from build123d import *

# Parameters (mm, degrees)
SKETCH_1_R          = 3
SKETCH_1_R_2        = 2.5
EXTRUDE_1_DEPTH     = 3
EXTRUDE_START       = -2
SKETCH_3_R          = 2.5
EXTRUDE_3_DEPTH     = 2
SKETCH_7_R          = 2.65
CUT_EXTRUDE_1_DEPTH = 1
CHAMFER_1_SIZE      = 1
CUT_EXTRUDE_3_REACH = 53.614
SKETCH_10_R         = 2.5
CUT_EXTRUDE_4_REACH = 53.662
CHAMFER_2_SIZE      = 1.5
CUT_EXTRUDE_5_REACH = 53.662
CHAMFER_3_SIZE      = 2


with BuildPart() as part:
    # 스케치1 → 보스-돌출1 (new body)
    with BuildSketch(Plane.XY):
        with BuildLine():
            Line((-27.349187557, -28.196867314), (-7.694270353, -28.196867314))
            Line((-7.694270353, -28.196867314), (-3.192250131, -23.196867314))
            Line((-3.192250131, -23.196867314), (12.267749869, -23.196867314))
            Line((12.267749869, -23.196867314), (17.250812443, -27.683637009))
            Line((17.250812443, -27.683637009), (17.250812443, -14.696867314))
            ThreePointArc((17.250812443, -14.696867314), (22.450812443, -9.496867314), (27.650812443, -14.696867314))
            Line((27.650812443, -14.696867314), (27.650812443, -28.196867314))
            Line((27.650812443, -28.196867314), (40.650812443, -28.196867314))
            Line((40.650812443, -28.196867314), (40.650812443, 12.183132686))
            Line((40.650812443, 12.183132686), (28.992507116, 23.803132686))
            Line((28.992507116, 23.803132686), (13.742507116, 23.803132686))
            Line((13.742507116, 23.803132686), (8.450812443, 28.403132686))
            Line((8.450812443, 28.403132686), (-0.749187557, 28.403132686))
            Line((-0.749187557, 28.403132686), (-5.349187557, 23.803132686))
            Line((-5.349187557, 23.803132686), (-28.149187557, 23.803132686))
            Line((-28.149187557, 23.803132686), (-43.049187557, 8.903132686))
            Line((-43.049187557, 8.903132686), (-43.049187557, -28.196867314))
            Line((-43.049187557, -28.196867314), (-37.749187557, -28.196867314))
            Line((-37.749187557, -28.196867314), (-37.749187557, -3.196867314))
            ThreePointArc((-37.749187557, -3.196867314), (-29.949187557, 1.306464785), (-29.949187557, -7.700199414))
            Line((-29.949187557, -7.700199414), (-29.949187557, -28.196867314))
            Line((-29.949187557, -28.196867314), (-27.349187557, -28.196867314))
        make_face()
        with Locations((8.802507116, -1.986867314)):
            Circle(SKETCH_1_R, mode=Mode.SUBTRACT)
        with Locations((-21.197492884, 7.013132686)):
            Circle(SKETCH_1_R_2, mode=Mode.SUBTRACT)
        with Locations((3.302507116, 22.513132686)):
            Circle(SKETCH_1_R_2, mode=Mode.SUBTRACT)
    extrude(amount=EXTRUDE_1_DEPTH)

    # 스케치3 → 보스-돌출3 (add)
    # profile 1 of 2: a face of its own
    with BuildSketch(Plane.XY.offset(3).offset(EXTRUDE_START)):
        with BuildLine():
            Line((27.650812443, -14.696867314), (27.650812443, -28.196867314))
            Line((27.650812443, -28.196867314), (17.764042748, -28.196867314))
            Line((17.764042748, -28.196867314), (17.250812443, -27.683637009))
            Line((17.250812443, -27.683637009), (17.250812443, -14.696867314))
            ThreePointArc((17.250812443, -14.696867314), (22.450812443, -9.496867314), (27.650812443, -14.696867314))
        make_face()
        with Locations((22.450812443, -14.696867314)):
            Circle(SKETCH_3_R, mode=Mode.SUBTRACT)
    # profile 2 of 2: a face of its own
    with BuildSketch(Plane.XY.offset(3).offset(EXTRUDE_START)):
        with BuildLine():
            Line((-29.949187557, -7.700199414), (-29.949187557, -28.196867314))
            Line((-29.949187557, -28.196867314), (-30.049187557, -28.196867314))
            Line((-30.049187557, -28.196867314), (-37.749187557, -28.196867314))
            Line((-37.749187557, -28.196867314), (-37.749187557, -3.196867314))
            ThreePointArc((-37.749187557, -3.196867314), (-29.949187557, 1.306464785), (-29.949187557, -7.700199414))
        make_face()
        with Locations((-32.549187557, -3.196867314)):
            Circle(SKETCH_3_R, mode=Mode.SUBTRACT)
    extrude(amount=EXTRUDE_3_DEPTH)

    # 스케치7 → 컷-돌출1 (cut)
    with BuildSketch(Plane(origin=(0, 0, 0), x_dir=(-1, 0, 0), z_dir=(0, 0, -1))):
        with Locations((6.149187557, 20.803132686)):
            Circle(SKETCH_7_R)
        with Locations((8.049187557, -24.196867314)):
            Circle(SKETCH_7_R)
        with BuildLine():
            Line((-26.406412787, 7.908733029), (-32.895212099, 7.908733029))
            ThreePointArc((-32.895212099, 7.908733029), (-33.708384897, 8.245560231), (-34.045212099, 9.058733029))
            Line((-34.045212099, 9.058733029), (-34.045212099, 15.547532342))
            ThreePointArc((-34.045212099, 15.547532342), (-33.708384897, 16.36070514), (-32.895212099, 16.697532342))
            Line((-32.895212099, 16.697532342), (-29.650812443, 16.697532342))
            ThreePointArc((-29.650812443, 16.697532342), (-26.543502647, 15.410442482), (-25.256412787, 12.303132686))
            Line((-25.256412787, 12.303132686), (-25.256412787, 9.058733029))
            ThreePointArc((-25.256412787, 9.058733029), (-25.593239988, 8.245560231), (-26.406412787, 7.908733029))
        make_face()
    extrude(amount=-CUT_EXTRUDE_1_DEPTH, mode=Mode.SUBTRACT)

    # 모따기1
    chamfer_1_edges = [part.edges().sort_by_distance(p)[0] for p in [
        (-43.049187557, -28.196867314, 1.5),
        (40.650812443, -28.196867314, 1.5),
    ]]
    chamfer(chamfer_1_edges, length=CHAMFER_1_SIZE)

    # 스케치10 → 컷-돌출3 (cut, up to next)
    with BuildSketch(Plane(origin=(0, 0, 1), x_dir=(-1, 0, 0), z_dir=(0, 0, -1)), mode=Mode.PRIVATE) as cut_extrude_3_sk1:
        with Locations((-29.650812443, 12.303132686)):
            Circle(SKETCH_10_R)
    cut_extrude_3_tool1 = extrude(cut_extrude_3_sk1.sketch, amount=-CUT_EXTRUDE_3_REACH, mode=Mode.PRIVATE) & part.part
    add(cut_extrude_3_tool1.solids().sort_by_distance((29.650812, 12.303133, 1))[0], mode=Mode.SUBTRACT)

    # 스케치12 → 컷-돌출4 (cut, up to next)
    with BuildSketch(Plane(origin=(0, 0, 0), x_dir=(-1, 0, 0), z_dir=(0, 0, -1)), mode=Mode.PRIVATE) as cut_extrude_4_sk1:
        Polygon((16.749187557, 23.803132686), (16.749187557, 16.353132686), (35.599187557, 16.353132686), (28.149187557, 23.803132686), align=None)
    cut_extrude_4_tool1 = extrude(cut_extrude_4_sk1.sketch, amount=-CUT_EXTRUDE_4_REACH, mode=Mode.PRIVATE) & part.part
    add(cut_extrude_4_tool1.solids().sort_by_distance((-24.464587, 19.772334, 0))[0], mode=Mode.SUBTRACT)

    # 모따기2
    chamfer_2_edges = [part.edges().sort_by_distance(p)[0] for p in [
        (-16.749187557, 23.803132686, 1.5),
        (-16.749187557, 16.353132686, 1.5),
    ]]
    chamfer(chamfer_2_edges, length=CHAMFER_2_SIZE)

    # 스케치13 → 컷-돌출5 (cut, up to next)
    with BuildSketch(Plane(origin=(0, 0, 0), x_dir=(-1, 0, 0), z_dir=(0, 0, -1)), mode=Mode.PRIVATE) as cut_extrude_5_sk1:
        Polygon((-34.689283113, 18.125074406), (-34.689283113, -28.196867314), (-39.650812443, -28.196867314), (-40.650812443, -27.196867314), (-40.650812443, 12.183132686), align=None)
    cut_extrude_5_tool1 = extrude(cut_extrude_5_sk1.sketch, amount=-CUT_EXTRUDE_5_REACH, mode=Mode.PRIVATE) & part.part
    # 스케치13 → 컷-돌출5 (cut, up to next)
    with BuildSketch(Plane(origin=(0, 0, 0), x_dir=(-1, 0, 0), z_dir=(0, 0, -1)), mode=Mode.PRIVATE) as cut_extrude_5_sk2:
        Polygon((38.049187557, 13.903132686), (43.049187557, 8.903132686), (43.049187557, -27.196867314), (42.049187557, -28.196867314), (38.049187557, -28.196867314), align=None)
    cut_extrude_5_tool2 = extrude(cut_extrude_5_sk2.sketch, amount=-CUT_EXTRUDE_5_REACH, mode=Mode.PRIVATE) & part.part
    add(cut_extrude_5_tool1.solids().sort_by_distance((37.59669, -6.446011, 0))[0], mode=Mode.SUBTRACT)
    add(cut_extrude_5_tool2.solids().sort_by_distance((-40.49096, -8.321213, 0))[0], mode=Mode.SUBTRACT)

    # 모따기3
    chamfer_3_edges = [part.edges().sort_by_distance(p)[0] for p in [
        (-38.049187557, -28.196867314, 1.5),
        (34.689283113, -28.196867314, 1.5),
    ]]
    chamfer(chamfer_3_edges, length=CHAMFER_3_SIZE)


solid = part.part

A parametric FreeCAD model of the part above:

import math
import FreeCAD as App
import Part
import Sketcher
Q = App.Units.Quantity


def edges_at(feature, points):
    """Names of the edges that pass closest to the given points."""
    edges = feature.Shape.Edges
    near = lambda p: min(range(len(edges)), key=lambda i: edges[i].distToShape(Part.Vertex(*p))[0])
    return sorted({f"Edge{near(p) + 1}" for p in points})


def add_polygon(sketch, points):
    """Adds a closed chain of lines whose ends are joined by coincident constraints."""
    first, n = sketch.GeometryCount, len(points)
    for a, b in zip(points, points[1:] + points[:1]):
        sketch.addGeometry(Part.LineSegment(App.Vector(*a, 0), App.Vector(*b, 0)), False)
    for i in range(n):
        sketch.addConstraint(Sketcher.Constraint("Coincident", first + i, 2, first + (i + 1) % n, 1))

doc = App.newDocument("Part")
params = doc.addObject("Spreadsheet::Sheet", "Params")
for row, (alias, value) in enumerate([
    ("sketch1_diameter", "5 mm"),
    ("sketch1_diameter2", "6 mm"),
    ("sketch1_radius", "5.2 mm"),
    ("sketch1_width", "13 mm"),
    ("sketch1_height", "25 mm"),
    ("pad1_length", "3 mm"),
    ("sketch2_diameter", "5 mm"),
    ("sketch2_radius", "5.2 mm"),
    ("sketch2_height", "25 mm"),
    ("sketch2_width", "7.8 mm"),
    ("sketch2_height2", "13.5 mm"),
    ("pad2_length", "2 mm"),
    ("sketch3_diameter", "5.3 mm"),
    ("sketch3_radius", "1.15 mm"),
    ("pocket1_length", "1 mm"),
    ("chamfer_size", "1 mm"),
    ("sketch4_diameter", "5 mm"),
    ("sketch5_width", "11.4 mm"),
    ("sketch5_width2", "18.85 mm"),
    ("chamfer2_size", "1.5 mm"),
    ("sketch6_height", "39.38 mm"),
    ("sketch7_width", "4 mm"),
    ("sketch7_height", "42.1 mm"),
    ("sketch7_height2", "36.1 mm"),
    ("chamfer3_size", "2 mm"),
], start=1):
    params.set(f"A{row}", alias)
    params.set(f"B{row}", "=" + value)
    params.setAlias(f"B{row}", alias)

body = doc.addObject("PartDesign::Body", "Body")

# Sketch on XY plane
sketch1 = doc.addObject("Sketcher::SketchObject", "Sketch")
body.addObject(sketch1)
sketch1.AttachmentSupport = (doc.XY_Plane, [""])
sketch1.MapMode = "FlatFace"
sketch1.addGeometry([
    Part.LineSegment(App.Vector(-7.69427, -28.196867, 0), App.Vector(-3.19225, -23.196867, 0)),  # 0
    Part.LineSegment(App.Vector(-3.19225, -23.196867, 0), App.Vector(12.26775, -23.196867, 0)),  # 1
    Part.LineSegment(App.Vector(12.26775, -23.196867, 0), App.Vector(17.250812, -27.683637, 0)),  # 2
    Part.LineSegment(App.Vector(17.250812, -27.683637, 0), App.Vector(17.250812, -14.696867, 0)),  # 3
    Part.ArcOfCircle(Part.Circle(App.Vector(22.450812, -14.696867, 0), App.Vector(0, 0, 1), 5.2), math.radians(0), math.radians(180)),  # 4
    Part.LineSegment(App.Vector(27.650812, -14.696867, 0), App.Vector(27.650812, -28.196867, 0)),  # 5
    Part.LineSegment(App.Vector(27.650812, -28.196867, 0), App.Vector(40.650812, -28.196867, 0)),  # 6
    Part.LineSegment(App.Vector(40.650812, -28.196867, 0), App.Vector(40.650812, 12.183133, 0)),  # 7
    Part.LineSegment(App.Vector(40.650812, 12.183133, 0), App.Vector(28.992507, 23.803133, 0)),  # 8
    Part.LineSegment(App.Vector(28.992507, 23.803133, 0), App.Vector(13.742507, 23.803133, 0)),  # 9
    Part.LineSegment(App.Vector(13.742507, 23.803133, 0), App.Vector(8.450812, 28.403133, 0)),  # 10
    Part.LineSegment(App.Vector(8.450812, 28.403133, 0), App.Vector(-0.749188, 28.403133, 0)),  # 11
    Part.LineSegment(App.Vector(-0.749188, 28.403133, 0), App.Vector(-5.349188, 23.803133, 0)),  # 12
    Part.LineSegment(App.Vector(-5.349188, 23.803133, 0), App.Vector(-28.149188, 23.803133, 0)),  # 13
    Part.LineSegment(App.Vector(-28.149188, 23.803133, 0), App.Vector(-43.049188, 8.903133, 0)),  # 14
    Part.LineSegment(App.Vector(-43.049188, 8.903133, 0), App.Vector(-43.049188, -28.196867, 0)),  # 15
    Part.LineSegment(App.Vector(-43.049188, -28.196867, 0), App.Vector(-37.749188, -28.196867, 0)),  # 16
    Part.LineSegment(App.Vector(-37.749188, -28.196867, 0), App.Vector(-37.749188, -3.196867, 0)),  # 17
    Part.ArcOfCircle(Part.Circle(App.Vector(-32.549188, -3.196867, 0), App.Vector(0, 0, 1), 5.2), math.radians(-60), math.radians(180)),  # 18
    Part.LineSegment(App.Vector(-29.949188, -7.700199, 0), App.Vector(-29.949188, -28.196867, 0)),  # 19
    Part.LineSegment(App.Vector(-29.949188, -28.196867, 0), App.Vector(-7.69427, -28.196867, 0)),  # 20
    Part.Circle(App.Vector(-21.197493, 7.013133, 0), App.Vector(0, 0, 1), 2.5),  # 21
    Part.Circle(App.Vector(8.802507, -1.986867, 0), App.Vector(0, 0, 1), 3),  # 22
    Part.Circle(App.Vector(3.302507, 22.513133, 0), App.Vector(0, 0, 1), 2.5),  # 23
], False)
sketch1.addConstraint([
    Sketcher.Constraint("Coincident", 0, 2, 1, 1),
    Sketcher.Constraint("Coincident", 1, 2, 2, 1),
    Sketcher.Constraint("Coincident", 2, 2, 3, 1),
    Sketcher.Constraint("Tangent", 3, 2, 4, 2),
    Sketcher.Constraint("Tangent", 4, 1, 5, 1),
    Sketcher.Constraint("Coincident", 5, 2, 6, 1),
    Sketcher.Constraint("Coincident", 6, 2, 7, 1),
    Sketcher.Constraint("Coincident", 7, 2, 8, 1),
    Sketcher.Constraint("Coincident", 8, 2, 9, 1),
    Sketcher.Constraint("Coincident", 9, 2, 10, 1),
    Sketcher.Constraint("Coincident", 10, 2, 11, 1),
    Sketcher.Constraint("Coincident", 11, 2, 12, 1),
    Sketcher.Constraint("Coincident", 12, 2, 13, 1),
    Sketcher.Constraint("Coincident", 13, 2, 14, 1),
    Sketcher.Constraint("Coincident", 14, 2, 15, 1),
    Sketcher.Constraint("Coincident", 15, 2, 16, 1),
    Sketcher.Constraint("Coincident", 16, 2, 17, 1),
    Sketcher.Constraint("Tangent", 17, 2, 18, 2),
    Sketcher.Constraint("Coincident", 18, 1, 19, 1),
    Sketcher.Constraint("Coincident", 19, 2, 20, 1),
    Sketcher.Constraint("Coincident", 20, 2, 0, 1),
    Sketcher.Constraint("Horizontal", 1),
    Sketcher.Constraint("Vertical", 3),
    Sketcher.Constraint("Vertical", 5),
    Sketcher.Constraint("Horizontal", 6),
    Sketcher.Constraint("Vertical", 7),
    Sketcher.Constraint("Horizontal", 9),
    Sketcher.Constraint("Horizontal", 11),
    Sketcher.Constraint("Horizontal", 13),
    Sketcher.Constraint("Vertical", 15),
    Sketcher.Constraint("Horizontal", 16),
    Sketcher.Constraint("Vertical", 17),
    Sketcher.Constraint("Vertical", 19),
    Sketcher.Constraint("Horizontal", 20),
    Sketcher.Constraint("Equal", 4, 18),
    Sketcher.Constraint("Equal", 21, 23),
    Sketcher.Constraint("Perpendicular", 0, 2),
    Sketcher.Constraint("Parallel", 12, 14),
    Sketcher.Constraint("Horizontal", 9, 2, 12, 2),
    Sketcher.Constraint("Horizontal", 6, 2, 15, 2),
    Sketcher.Constraint("Horizontal", 16, 2, 19, 2),
    Sketcher.Constraint("Diameter", 21, 5.0),
    Sketcher.Constraint("Diameter", 22, 6.0),
    Sketcher.Constraint("Radius", 4, 5.2),
    Sketcher.Constraint("DistanceX", 6, 1, 6, 2, 13.0),
    Sketcher.Constraint("DistanceY", 17, 1, 17, 2, 25.0),
    Sketcher.Constraint("Angle", 0, Q("48 deg")),
    Sketcher.Constraint("Angle", 10, Q("139 deg")),
    Sketcher.Constraint("Angle", 12, Q("-135 deg")),
    Sketcher.Constraint("DistanceX", 11, 2, 11, 1, 9.2),
    Sketcher.Constraint("DistanceX", 13, 2, 13, 1, 22.8),
    Sketcher.Constraint("DistanceX", 16, 1, 16, 2, 5.3),
    Sketcher.Constraint("DistanceY", 5, 2, 5, 1, 13.5),
    Sketcher.Constraint("DistanceY", 15, 2, 15, 1, 37.1),
    Sketcher.Constraint("DistanceX", 18, 3, 4, 3, 55.0),
    Sketcher.Constraint("DistanceX", 21, 3, 22, 3, 30.0),
    Sketcher.Constraint("DistanceY", 22, 3, 21, 3, 9.0),
    Sketcher.Constraint("DistanceY", 0, 2, 18, 3, 20.0),
    Sketcher.Constraint("DistanceY", 18, 3, 13, 2, 27.0),
    Sketcher.Constraint("DistanceX", 1, 1, 1, 2, 15.46),
    Sketcher.Constraint("DistanceX", 9, 2, 9, 1, 15.25),
    Sketcher.Constraint("DistanceY", 7, 1, 7, 2, 40.38),
    Sketcher.Constraint("DistanceX", 23, 3, 22, 3, 5.5),
    Sketcher.Constraint("DistanceY", 22, 3, 23, 3, 24.5),
    Sketcher.Constraint("DistanceY", 9, 2, 10, 2, 4.6),
    Sketcher.Constraint("DistanceX", 18, 3, 18, 1, 2.6),
    Sketcher.Constraint("DistanceY", 18, 3, 21, 3, 10.21),
    Sketcher.Constraint("DistanceX", 23, 3, 8, 2, 25.69),
    Sketcher.Constraint("DistanceY", 3, 1, 3, 2, 12.98677),
    Sketcher.Constraint("DistanceY", 18, 1, -1, 1, 7.700199),
    Sketcher.Constraint("DistanceX", 0, 2, -1, 1, 3.19225),
])
sketch1.setExpression("Constraints[41]", "Params.sketch1_diameter")
sketch1.setExpression("Constraints[42]", "Params.sketch1_diameter2")
sketch1.setExpression("Constraints[43]", "Params.sketch1_radius")
sketch1.setExpression("Constraints[44]", "Params.sketch1_width")
sketch1.setExpression("Constraints[45]", "Params.sketch1_height")
pad1 = doc.addObject("PartDesign::Pad", "Pad")
body.addObject(pad1)
pad1.Profile = sketch1
pad1.setExpression("Length", "Params.pad1_length")

# Sketch on XY plane
sketch2 = doc.addObject("Sketcher::SketchObject", "Sketch001")
body.addObject(sketch2)
sketch2.AttachmentSupport = (doc.XY_Plane, [""])
sketch2.MapMode = "FlatFace"
sketch2.AttachmentOffset = App.Placement(App.Vector(0, 0, 1), App.Rotation())
sketch2.addGeometry([
    Part.LineSegment(App.Vector(27.650812, -28.196867, 0), App.Vector(27.650812, -14.696867, 0)),  # 0
    Part.ArcOfCircle(Part.Circle(App.Vector(22.450812, -14.696867, 0), App.Vector(0, 0, 1), 5.2), math.radians(0), math.radians(180)),  # 1
    Part.LineSegment(App.Vector(17.250812, -14.696867, 0), App.Vector(17.250812, -27.683637, 0)),  # 2
    Part.LineSegment(App.Vector(17.250812, -27.683637, 0), App.Vector(17.764043, -28.196867, 0)),  # 3
    Part.LineSegment(App.Vector(17.764043, -28.196867, 0), App.Vector(27.650812, -28.196867, 0)),  # 4
    Part.Circle(App.Vector(22.450812, -14.696867, 0), App.Vector(0, 0, 1), 2.5),  # 5
    Part.LineSegment(App.Vector(-29.949188, -28.196867, 0), App.Vector(-29.949188, -7.700199, 0)),  # 6
    Part.ArcOfCircle(Part.Circle(App.Vector(-32.549188, -3.196867, 0), App.Vector(0, 0, 1), 5.2), math.radians(-60), math.radians(180)),  # 7
    Part.LineSegment(App.Vector(-37.749188, -3.196867, 0), App.Vector(-37.749188, -28.196867, 0)),  # 8
    Part.LineSegment(App.Vector(-37.749188, -28.196867, 0), App.Vector(-29.949188, -28.196867, 0)),  # 9
    Part.Circle(App.Vector(-32.549188, -3.196867, 0), App.Vector(0, 0, 1), 2.5),  # 10
], False)
sketch2.addConstraint([
    Sketcher.Constraint("Tangent", 0, 2, 1, 1),
    Sketcher.Constraint("Tangent", 1, 2, 2, 1),
    Sketcher.Constraint("Coincident", 2, 2, 3, 1),
    Sketcher.Constraint("Coincident", 3, 2, 4, 1),
    Sketcher.Constraint("Coincident", 4, 2, 0, 1),
    Sketcher.Constraint("Coincident", 6, 2, 7, 1),
    Sketcher.Constraint("Tangent", 7, 2, 8, 1),
    Sketcher.Constraint("Coincident", 8, 2, 9, 1),
    Sketcher.Constraint("Coincident", 9, 2, 6, 1),
    Sketcher.Constraint("Vertical", 0),
    Sketcher.Constraint("Vertical", 2),
    Sketcher.Constraint("Horizontal", 4),
    Sketcher.Constraint("Vertical", 6),
    Sketcher.Constraint("Vertical", 8),
    Sketcher.Constraint("Horizontal", 9),
    Sketcher.Constraint("Coincident", 5, 3, 1, 3),
    Sketcher.Constraint("Coincident", 10, 3, 7, 3),
    Sketcher.Constraint("Equal", 1, 7),
    Sketcher.Constraint("Equal", 5, 10),
    Sketcher.Constraint("Horizontal", 4, 2, 8, 2),
    Sketcher.Constraint("Diameter", 5, 5.0),
    Sketcher.Constraint("Radius", 1, 5.2),
    Sketcher.Constraint("DistanceY", 8, 2, 8, 1, 25.0),
    Sketcher.Constraint("Angle", 3, Q("-45 deg")),
    Sketcher.Constraint("DistanceX", 9, 1, 9, 2, 7.8),
    Sketcher.Constraint("DistanceY", 0, 1, 0, 2, 13.5),
    Sketcher.Constraint("DistanceX", 7, 3, 1, 3, 55.0),
    Sketcher.Constraint("DistanceX", 4, 1, 4, 2, 9.88677),
    Sketcher.Constraint("DistanceY", 6, 2, -1, 1, 7.700199),
    Sketcher.Constraint("DistanceX", -1, 1, 1, 3, 22.450812),
])
sketch2.setExpression("Constraints[20]", "Params.sketch2_diameter")
sketch2.setExpression("Constraints[21]", "Params.sketch2_radius")
sketch2.setExpression("Constraints[22]", "Params.sketch2_height")
sketch2.setExpression("Constraints[24]", "Params.sketch2_width")
sketch2.setExpression("Constraints[25]", "Params.sketch2_height2")
pad2 = doc.addObject("PartDesign::Pad", "Pad001")
body.addObject(pad2)
pad2.Profile = sketch2
pad2.setExpression("Length", "Params.pad2_length")

# Sketch on XY plane
sketch3 = doc.addObject("Sketcher::SketchObject", "Sketch002")
body.addObject(sketch3)
sketch3.AttachmentSupport = (doc.XY_Plane, [""])
sketch3.MapMode = "FlatFace"
sketch3.addGeometry([
    Part.Circle(App.Vector(-6.149188, 20.803133, 0), App.Vector(0, 0, 1), 2.65),  # 0
    Part.Circle(App.Vector(-8.049188, -24.196867, 0), App.Vector(0, 0, 1), 2.65),  # 1
    Part.LineSegment(App.Vector(32.895212, 7.908733, 0), App.Vector(26.406413, 7.908733, 0)),  # 2
    Part.ArcOfCircle(Part.Circle(App.Vector(26.406413, 9.058733, 0), App.Vector(0, 0, 1), 1.15), math.radians(180), math.radians(270)),  # 3
    Part.LineSegment(App.Vector(25.256413, 9.058733, 0), App.Vector(25.256413, 12.303133, 0)),  # 4
    Part.ArcOfCircle(Part.Circle(App.Vector(29.650812, 12.303133, 0), App.Vector(0, 0, 1), 4.3944), math.radians(90), math.radians(180)),  # 5
    Part.LineSegment(App.Vector(29.650812, 16.697532, 0), App.Vector(32.895212, 16.697532, 0)),  # 6
    Part.ArcOfCircle(Part.Circle(App.Vector(32.895212, 15.547532, 0), App.Vector(0, 0, 1), 1.15), math.radians(0), math.radians(90)),  # 7
    Part.LineSegment(App.Vector(34.045212, 15.547532, 0), App.Vector(34.045212, 9.058733, 0)),  # 8
    Part.ArcOfCircle(Part.Circle(App.Vector(32.895212, 9.058733, 0), App.Vector(0, 0, 1), 1.15), math.radians(-90), math.radians(0)),  # 9
], False)
sketch3.addConstraint([
    Sketcher.Constraint("Tangent", 2, 2, 3, 2),
    Sketcher.Constraint("Tangent", 3, 1, 4, 1),
    Sketcher.Constraint("Tangent", 4, 2, 5, 2),
    Sketcher.Constraint("Tangent", 5, 1, 6, 1),
    Sketcher.Constraint("Tangent", 6, 2, 7, 2),
    Sketcher.Constraint("Tangent", 7, 1, 8, 1),
    Sketcher.Constraint("Tangent", 8, 2, 9, 2),
    Sketcher.Constraint("Tangent", 9, 1, 2, 1),
    Sketcher.Constraint("Horizontal", 2),
    Sketcher.Constraint("Vertical", 4),
    Sketcher.Constraint("Horizontal", 6),
    Sketcher.Constraint("Vertical", 8),
    Sketcher.Constraint("Equal", 0, 1),
    Sketcher.Constraint("Equal", 3, 7),
    Sketcher.Constraint("Equal", 7, 9),
    Sketcher.Constraint("Equal", 6, 4),
    Sketcher.Constraint("Diameter", 0, 5.3),
    Sketcher.Constraint("Radius", 3, 1.15),
    Sketcher.Constraint("DistanceY", 1, 3, 0, 3, 45.0),
    Sketcher.Constraint("Radius", 5, 4.3944),
    Sketcher.Constraint("DistanceX", 1, 3, 0, 3, 1.9),
    Sketcher.Constraint("DistanceX", 0, 3, 5, 3, 35.8),
    Sketcher.Constraint("DistanceY", 5, 3, 0, 3, 8.5),
    Sketcher.Constraint("DistanceX", 2, 2, 2, 1, 6.488799),
    Sketcher.Constraint("DistanceX", 0, 3, -1, 1, 6.149188),
    Sketcher.Constraint("DistanceY", -1, 1, 0, 3, 20.803133),
])
sketch3.setExpression("Constraints[16]", "Params.sketch3_diameter")
sketch3.setExpression("Constraints[17]", "Params.sketch3_radius")
pocket1 = doc.addObject("PartDesign::Pocket", "Pocket")
body.addObject(pocket1)
pocket1.Profile = sketch3
pocket1.setExpression("Length", "Params.pocket1_length")
pocket1.Reversed = True
doc.recompute()

chamfer = doc.addObject("PartDesign::Chamfer", "Chamfer")
body.addObject(chamfer)
chamfer.Base = (pocket1, edges_at(pocket1, [(-43.049, -28.197, 1.5), (40.651, -28.197, 1.5)]))
chamfer.setExpression("Size", "Params.chamfer_size")

# Sketch on XY plane
sketch4 = doc.addObject("Sketcher::SketchObject", "Sketch003")
body.addObject(sketch4)
sketch4.AttachmentSupport = (doc.XY_Plane, [""])
sketch4.MapMode = "FlatFace"
sketch4.AttachmentOffset = App.Placement(App.Vector(0, 0, 1), App.Rotation())
sketch4.addGeometry(Part.Circle(App.Vector(29.650812, 12.303133, 0), App.Vector(0, 0, 1), 2.5), False)
sketch4.addConstraint([
    Sketcher.Constraint("Diameter", 0, 5.0),
    Sketcher.Constraint("DistanceX", -1, 1, 0, 3, 29.650812),
    Sketcher.Constraint("DistanceY", -1, 1, 0, 3, 12.303133),
])
sketch4.setExpression("Constraints[0]", "Params.sketch4_diameter")
pocket2 = doc.addObject("PartDesign::Pocket", "Pocket001")
body.addObject(pocket2)
pocket2.Profile = sketch4
pocket2.Type = "UpToFirst"
pocket2.Reversed = True

# Sketch on XY plane
sketch5 = doc.addObject("Sketcher::SketchObject", "Sketch004")
body.addObject(sketch5)
sketch5.AttachmentSupport = (doc.XY_Plane, [""])
sketch5.MapMode = "FlatFace"
add_polygon(sketch5, [(-16.749188, 23.803133), (-16.749188, 16.353133), (-35.599188, 16.353133), (-28.149188, 23.803133)])  # lines 0-3
sketch5.addConstraint([
    Sketcher.Constraint("Vertical", 0),
    Sketcher.Constraint("Horizontal", 1),
    Sketcher.Constraint("Horizontal", 3),
    Sketcher.Constraint("Angle", 2, Q("45 deg")),
    Sketcher.Constraint("DistanceX", 3, 1, 3, 2, 11.4),
    Sketcher.Constraint("DistanceX", 1, 2, 1, 1, 18.85),
    Sketcher.Constraint("DistanceX", 0, 2, -1, 1, 16.749188),
    Sketcher.Constraint("DistanceY", -1, 1, 0, 2, 16.353133),
])
sketch5.setExpression("Constraints[8]", "Params.sketch5_width")
sketch5.setExpression("Constraints[9]", "Params.sketch5_width2")
pocket3 = doc.addObject("PartDesign::Pocket", "Pocket002")
body.addObject(pocket3)
pocket3.Profile = sketch5
pocket3.Type = "UpToFirst"
pocket3.Reversed = True
doc.recompute()

chamfer2 = doc.addObject("PartDesign::Chamfer", "Chamfer001")
body.addObject(chamfer2)
chamfer2.Base = (pocket3, edges_at(pocket3, [(-16.749, 23.803, 1.5), (-16.749, 16.353, 1.5)]))
chamfer2.setExpression("Size", "Params.chamfer2_size")

# Sketch on XY plane
sketch6 = doc.addObject("Sketcher::SketchObject", "Sketch005")
body.addObject(sketch6)
sketch6.AttachmentSupport = (doc.XY_Plane, [""])
sketch6.MapMode = "FlatFace"
add_polygon(sketch6, [(34.689283, -28.196867), (34.689283, 18.125074), (40.650812, 12.183133), (40.650812, -27.196867), (39.650812, -28.196867)])  # lines 0-4
sketch6.addConstraint([
    Sketcher.Constraint("Vertical", 0),
    Sketcher.Constraint("Vertical", 2),
    Sketcher.Constraint("Horizontal", 4),
    Sketcher.Constraint("Angle", 3, Q("-135 deg")),
    Sketcher.Constraint("DistanceX", 3, 2, 2, 2, 1.0),
    Sketcher.Constraint("DistanceY", 2, 2, 2, 1, 39.38),
    Sketcher.Constraint("DistanceX", 4, 2, 4, 1, 4.961529),
    Sketcher.Constraint("DistanceY", 0, 1, 0, 2, 46.321942),
    Sketcher.Constraint("DistanceX", -1, 1, 0, 2, 34.689283),
    Sketcher.Constraint("DistanceY", -1, 1, 0, 2, 18.125074),
])
sketch6.setExpression("Constraints[10]", "Params.sketch6_height")
pocket4 = doc.addObject("PartDesign::Pocket", "Pocket003")
body.addObject(pocket4)
pocket4.Profile = sketch6
pocket4.Type = "UpToFirst"
pocket4.Reversed = True

# Sketch on XY plane
sketch7 = doc.addObject("Sketcher::SketchObject", "Sketch006")
body.addObject(sketch7)
sketch7.AttachmentSupport = (doc.XY_Plane, [""])
sketch7.MapMode = "FlatFace"
add_polygon(sketch7, [(-43.049188, 8.903133), (-38.049188, 13.903133), (-38.049188, -28.196867), (-42.049188, -28.196867), (-43.049188, -27.196867)])  # lines 0-4
sketch7.addConstraint([
    Sketcher.Constraint("Vertical", 1),
    Sketcher.Constraint("Horizontal", 2),
    Sketcher.Constraint("Vertical", 4),
    Sketcher.Constraint("Perpendicular", 0, 3),
    Sketcher.Constraint("DistanceX", 2, 2, 2, 1, 4.0),
    Sketcher.Constraint("Angle", 0, Q("45 deg")),
    Sketcher.Constraint("DistanceY", 1, 2, 1, 1, 42.1),
    Sketcher.Constraint("DistanceY", 4, 1, 4, 2, 36.1),
    Sketcher.Constraint("DistanceX", 0, 2, -1, 1, 38.049188),
    Sketcher.Constraint("DistanceY", -1, 1, 0, 2, 13.903133),
])
sketch7.setExpression("Constraints[9]", "Params.sketch7_width")
sketch7.setExpression("Constraints[11]", "Params.sketch7_height")
sketch7.setExpression("Constraints[12]", "Params.sketch7_height2")
pocket5 = doc.addObject("PartDesign::Pocket", "Pocket004")
body.addObject(pocket5)
pocket5.Profile = sketch7
pocket5.Type = "UpToFirst"
pocket5.Reversed = True
doc.recompute()

chamfer3 = doc.addObject("PartDesign::Chamfer", "Chamfer002")
body.addObject(chamfer3)
chamfer3.Base = (pocket5, edges_at(pocket5, [(-38.049, -28.197, 1.5), (34.689, -28.197, 1.5)]))
chamfer3.setExpression("Size", "Params.chamfer3_size")

doc.recompute()
